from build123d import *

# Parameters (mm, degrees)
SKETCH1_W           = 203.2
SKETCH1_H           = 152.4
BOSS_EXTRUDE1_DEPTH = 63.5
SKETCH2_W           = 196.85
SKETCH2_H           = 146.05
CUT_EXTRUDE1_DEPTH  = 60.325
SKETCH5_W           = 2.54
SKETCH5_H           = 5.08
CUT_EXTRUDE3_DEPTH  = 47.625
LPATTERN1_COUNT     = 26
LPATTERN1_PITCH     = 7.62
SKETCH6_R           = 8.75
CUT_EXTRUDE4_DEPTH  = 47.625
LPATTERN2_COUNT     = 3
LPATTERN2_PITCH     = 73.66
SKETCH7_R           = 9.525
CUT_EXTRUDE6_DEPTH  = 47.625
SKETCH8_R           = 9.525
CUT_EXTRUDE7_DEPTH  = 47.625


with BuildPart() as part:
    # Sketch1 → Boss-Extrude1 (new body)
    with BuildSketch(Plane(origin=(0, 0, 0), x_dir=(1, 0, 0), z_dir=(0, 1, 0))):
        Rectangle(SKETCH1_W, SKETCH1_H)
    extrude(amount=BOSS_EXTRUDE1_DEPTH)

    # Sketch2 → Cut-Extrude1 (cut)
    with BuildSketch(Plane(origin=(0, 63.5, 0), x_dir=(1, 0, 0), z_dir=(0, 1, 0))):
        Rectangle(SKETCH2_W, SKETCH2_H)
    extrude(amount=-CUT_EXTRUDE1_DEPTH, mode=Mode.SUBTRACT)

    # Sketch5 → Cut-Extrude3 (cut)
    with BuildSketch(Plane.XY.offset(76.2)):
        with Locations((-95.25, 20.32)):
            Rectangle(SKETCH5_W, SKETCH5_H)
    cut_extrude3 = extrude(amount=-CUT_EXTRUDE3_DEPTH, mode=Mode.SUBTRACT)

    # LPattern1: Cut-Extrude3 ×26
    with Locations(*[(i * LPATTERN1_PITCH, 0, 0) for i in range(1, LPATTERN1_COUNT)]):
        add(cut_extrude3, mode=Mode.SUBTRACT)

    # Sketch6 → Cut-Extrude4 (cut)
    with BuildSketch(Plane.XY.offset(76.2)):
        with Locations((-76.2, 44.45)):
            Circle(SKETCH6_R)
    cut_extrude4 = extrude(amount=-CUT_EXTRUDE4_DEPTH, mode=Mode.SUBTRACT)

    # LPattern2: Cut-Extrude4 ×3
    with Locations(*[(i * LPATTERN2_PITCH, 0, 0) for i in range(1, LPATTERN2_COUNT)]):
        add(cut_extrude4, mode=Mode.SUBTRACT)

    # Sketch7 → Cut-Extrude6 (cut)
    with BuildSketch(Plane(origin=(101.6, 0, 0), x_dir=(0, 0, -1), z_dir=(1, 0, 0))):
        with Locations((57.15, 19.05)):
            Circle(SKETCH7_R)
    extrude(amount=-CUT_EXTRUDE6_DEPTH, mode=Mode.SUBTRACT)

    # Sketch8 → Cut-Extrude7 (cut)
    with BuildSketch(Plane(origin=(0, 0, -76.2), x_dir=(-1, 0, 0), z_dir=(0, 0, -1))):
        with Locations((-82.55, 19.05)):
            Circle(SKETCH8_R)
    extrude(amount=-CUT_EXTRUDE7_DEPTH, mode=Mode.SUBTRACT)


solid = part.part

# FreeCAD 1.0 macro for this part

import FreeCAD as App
import Part
import Sketcher
from FreeCAD import Vector
Q = App.Units.Quantity


def add_polygon(sketch, points):
    """Adds a closed chain of lines whose ends are joined by coincident constraints."""
    first, n = sketch.GeometryCount, len(points)
    for a, b in zip(points, points[1:] + points[:1]):
        sketch.addGeometry(Part.LineSegment(App.Vector(*a, 0), App.Vector(*b, 0)), False)
    for i in range(n):
        sketch.addConstraint(Sketcher.Constraint("Coincident", first + i, 2, first + (i + 1) % n, 1))

doc = App.newDocument("Part")
body = doc.addObject("PartDesign::Body", "Body")

# Sketch on XZ plane
sketch1 = body.newObject("Sketcher::SketchObject", "Sketch")
sketch1.AttachmentSupport = (doc.getObject("XZ_Plane"), [""])
sketch1.MapMode = "FlatFace"
add_polygon(sketch1, [(-101.6, -76.2), (-101.6, 76.2), (101.6, 76.2), (101.6, -76.2)])  # lines 0-3
sketch1.addConstraint(Sketcher.Constraint("Vertical", 0))
sketch1.addConstraint(Sketcher.Constraint("Horizontal", 1))
sketch1.addConstraint(Sketcher.Constraint("Vertical", 2))
sketch1.addConstraint(Sketcher.Constraint("Horizontal", 3))
sketch1.addConstraint(Sketcher.Constraint("Symmetric", 0, 2, 2, 2, -1, 1))
sketch1.addConstraint(Sketcher.Constraint("DistanceX", 1, 1, 1, 2, Q("8 in")))
sketch1.addConstraint(Sketcher.Constraint("DistanceY", 0, 1, 0, 2, Q("6 in")))
pad1 = body.newObject("PartDesign::Pad", "Pad")
pad1.Profile = sketch1
pad1.Length = Q("2.5 in")
pad1.Reversed = True

# Sketch on XZ plane
sketch2 = body.newObject("Sketcher::SketchObject", "Sketch001")
sketch2.AttachmentSupport = (doc.getObject("XZ_Plane"), [""])
sketch2.MapMode = "FlatFace"
sketch2.AttachmentOffset = App.Placement(Vector(0, 0, -2.5 * 25.4), App.Rotation())
add_polygon(sketch2, [(-98.425, -73.025), (-98.425, 73.025), (98.425, 73.025), (98.425, -73.025)])  # lines 0-3
sketch2.addConstraint(Sketcher.Constraint("Vertical", 0))
sketch2.addConstraint(Sketcher.Constraint("Horizontal", 1))
sketch2.addConstraint(Sketcher.Constraint("Vertical", 2))
sketch2.addConstraint(Sketcher.Constraint("Horizontal", 3))
sketch2.addConstraint(Sketcher.Constraint("Symmetric", 0, 2, 2, 2, -1, 1))
sketch2.addConstraint(Sketcher.Constraint("DistanceX", 1, 1, 1, 2, Q("7.75 in")))
sketch2.addConstraint(Sketcher.Constraint("DistanceY", 0, 1, 0, 2, Q("5.75 in")))
pocket1 = body.newObject("PartDesign::Pocket", "Pocket")
pocket1.Profile = sketch2
pocket1.Length = Q("2.375 in")
pocket1.Reversed = True

# Sketch on XY plane
sketch3 = body.newObject("Sketcher::SketchObject", "Sketch002")
sketch3.AttachmentSupport = (doc.getObject("XY_Plane"), [""])
sketch3.MapMode = "FlatFace"
sketch3.AttachmentOffset = App.Placement(Vector(0, 0, 3 * 25.4), App.Rotation())
add_polygon(sketch3, [(-96.52, 22.86), (-96.52, 17.78), (-93.98, 17.78), (-93.98, 22.86)])  # lines 0-3
sketch3.addConstraint(Sketcher.Constraint("Vertical", 0))
sketch3.addConstraint(Sketcher.Constraint("Horizontal", 1))
sketch3.addConstraint(Sketcher.Constraint("Vertical", 2))
sketch3.addConstraint(Sketcher.Constraint("Horizontal", 3))
sketch3.addConstraint(Sketcher.Constraint("DistanceX", 1, 1, 1, 2, Q("0.1 in")))
sketch3.addConstraint(Sketcher.Constraint("DistanceY", 0, 2, 0, 1, Q("0.2 in")))
sketch3.addConstraint(Sketcher.Constraint("DistanceX", 0, 2, -1, 1, Q("3.8 in")))
sketch3.addConstraint(Sketcher.Constraint("DistanceY", -1, 1, 0, 2, Q("0.7 in")))
pocket2 = body.newObject("PartDesign::Pocket", "Pocket001")
pocket2.Profile = sketch3
pocket2.Length = Q("1.875 in")
doc.recompute()

linearpattern = body.newObject("PartDesign::LinearPattern", "LinearPattern")
linearpattern.Originals = [pocket2]
linearpattern.Direction = (doc.getObject("X_Axis"), [""])
linearpattern.Mode = "offset"
linearpattern.Offset = Q("0.3 in")
linearpattern.Occurrences = 26
body.Tip = linearpattern

# Sketch on XY plane
sketch4 = body.newObject("Sketcher::SketchObject", "Sketch003")
sketch4.AttachmentSupport = (doc.getObject("XY_Plane"), [""])
sketch4.MapMode = "FlatFace"
sketch4.AttachmentOffset = App.Placement(Vector(0, 0, 3 * 25.4), App.Rotation())
sketch4.addGeometry(Part.Circle(Vector(-76.2, 44.45, 0), Vector(0, 0, 1), 8.75), False)
sketch4.addConstraint(Sketcher.Constraint("DistanceX", 0, 3, -1, 1, Q("3 in")))
sketch4.addConstraint(Sketcher.Constraint("Diameter", 0, 17.5))
sketch4.addConstraint(Sketcher.Constraint("DistanceY", -1, 1, 0, 3, Q("1.75 in")))
pocket3 = body.newObject("PartDesign::Pocket", "Pocket002")
pocket3.Profile = sketch4
pocket3.Length = Q("1.875 in")
doc.recompute()

linearpattern2 = body.newObject("PartDesign::LinearPattern", "LinearPattern001")
linearpattern2.Originals = [pocket3]
linearpattern2.Direction = (doc.getObject("X_Axis"), [""])
linearpattern2.Mode = "offset"
linearpattern2.Offset = Q("2.9 in")
linearpattern2.Occurrences = 3
body.Tip = linearpattern2

# Sketch on YZ plane
sketch5 = body.newObject("Sketcher::SketchObject", "Sketch004")
sketch5.AttachmentSupport = (doc.getObject("YZ_Plane"), [""])
sketch5.MapMode = "FlatFace"
sketch5.AttachmentOffset = App.Placement(Vector(0, 0, 4 * 25.4), App.Rotation())
sketch5.addGeometry(Part.Circle(Vector(19.05, -57.15, 0), Vector(0, 0, 1), 9.525), False)
sketch5.addConstraint(Sketcher.Constraint("Diameter", 0, Q("0.75 in")))
sketch5.addConstraint(Sketcher.Constraint("DistanceX", -1, 1, 0, 3, Q("0.75 in")))
sketch5.addConstraint(Sketcher.Constraint("DistanceY", 0, 3, -1, 1, Q("2.25 in")))
pocket4 = body.newObject("PartDesign::Pocket", "Pocket003")
pocket4.Profile = sketch5
pocket4.Length = Q("1.875 in")

# Sketch on XY plane
sketch6 = body.newObject("Sketcher::SketchObject", "Sketch005")
sketch6.AttachmentSupport = (doc.getObject("XY_Plane"), [""])
sketch6.MapMode = "FlatFace"
sketch6.AttachmentOffset = App.Placement(Vector(0, 0, -3 * 25.4), App.Rotation())
sketch6.addGeometry(Part.Circle(Vector(82.55, 19.05, 0), Vector(0, 0, 1), 9.525), False)
sketch6.addConstraint(Sketcher.Constraint("Diameter", 0, Q("0.75 in")))
sketch6.addConstraint(Sketcher.Constraint("DistanceX", -1, 1, 0, 3, Q("3.25 in")))
sketch6.addConstraint(Sketcher.Constraint("DistanceY", -1, 1, 0, 3, Q("0.75 in")))
pocket5 = body.newObject("PartDesign::Pocket", "Pocket004")
pocket5.Profile = sketch6
pocket5.Length = Q("1.875 in")
pocket5.Reversed = True

doc.recompute()
